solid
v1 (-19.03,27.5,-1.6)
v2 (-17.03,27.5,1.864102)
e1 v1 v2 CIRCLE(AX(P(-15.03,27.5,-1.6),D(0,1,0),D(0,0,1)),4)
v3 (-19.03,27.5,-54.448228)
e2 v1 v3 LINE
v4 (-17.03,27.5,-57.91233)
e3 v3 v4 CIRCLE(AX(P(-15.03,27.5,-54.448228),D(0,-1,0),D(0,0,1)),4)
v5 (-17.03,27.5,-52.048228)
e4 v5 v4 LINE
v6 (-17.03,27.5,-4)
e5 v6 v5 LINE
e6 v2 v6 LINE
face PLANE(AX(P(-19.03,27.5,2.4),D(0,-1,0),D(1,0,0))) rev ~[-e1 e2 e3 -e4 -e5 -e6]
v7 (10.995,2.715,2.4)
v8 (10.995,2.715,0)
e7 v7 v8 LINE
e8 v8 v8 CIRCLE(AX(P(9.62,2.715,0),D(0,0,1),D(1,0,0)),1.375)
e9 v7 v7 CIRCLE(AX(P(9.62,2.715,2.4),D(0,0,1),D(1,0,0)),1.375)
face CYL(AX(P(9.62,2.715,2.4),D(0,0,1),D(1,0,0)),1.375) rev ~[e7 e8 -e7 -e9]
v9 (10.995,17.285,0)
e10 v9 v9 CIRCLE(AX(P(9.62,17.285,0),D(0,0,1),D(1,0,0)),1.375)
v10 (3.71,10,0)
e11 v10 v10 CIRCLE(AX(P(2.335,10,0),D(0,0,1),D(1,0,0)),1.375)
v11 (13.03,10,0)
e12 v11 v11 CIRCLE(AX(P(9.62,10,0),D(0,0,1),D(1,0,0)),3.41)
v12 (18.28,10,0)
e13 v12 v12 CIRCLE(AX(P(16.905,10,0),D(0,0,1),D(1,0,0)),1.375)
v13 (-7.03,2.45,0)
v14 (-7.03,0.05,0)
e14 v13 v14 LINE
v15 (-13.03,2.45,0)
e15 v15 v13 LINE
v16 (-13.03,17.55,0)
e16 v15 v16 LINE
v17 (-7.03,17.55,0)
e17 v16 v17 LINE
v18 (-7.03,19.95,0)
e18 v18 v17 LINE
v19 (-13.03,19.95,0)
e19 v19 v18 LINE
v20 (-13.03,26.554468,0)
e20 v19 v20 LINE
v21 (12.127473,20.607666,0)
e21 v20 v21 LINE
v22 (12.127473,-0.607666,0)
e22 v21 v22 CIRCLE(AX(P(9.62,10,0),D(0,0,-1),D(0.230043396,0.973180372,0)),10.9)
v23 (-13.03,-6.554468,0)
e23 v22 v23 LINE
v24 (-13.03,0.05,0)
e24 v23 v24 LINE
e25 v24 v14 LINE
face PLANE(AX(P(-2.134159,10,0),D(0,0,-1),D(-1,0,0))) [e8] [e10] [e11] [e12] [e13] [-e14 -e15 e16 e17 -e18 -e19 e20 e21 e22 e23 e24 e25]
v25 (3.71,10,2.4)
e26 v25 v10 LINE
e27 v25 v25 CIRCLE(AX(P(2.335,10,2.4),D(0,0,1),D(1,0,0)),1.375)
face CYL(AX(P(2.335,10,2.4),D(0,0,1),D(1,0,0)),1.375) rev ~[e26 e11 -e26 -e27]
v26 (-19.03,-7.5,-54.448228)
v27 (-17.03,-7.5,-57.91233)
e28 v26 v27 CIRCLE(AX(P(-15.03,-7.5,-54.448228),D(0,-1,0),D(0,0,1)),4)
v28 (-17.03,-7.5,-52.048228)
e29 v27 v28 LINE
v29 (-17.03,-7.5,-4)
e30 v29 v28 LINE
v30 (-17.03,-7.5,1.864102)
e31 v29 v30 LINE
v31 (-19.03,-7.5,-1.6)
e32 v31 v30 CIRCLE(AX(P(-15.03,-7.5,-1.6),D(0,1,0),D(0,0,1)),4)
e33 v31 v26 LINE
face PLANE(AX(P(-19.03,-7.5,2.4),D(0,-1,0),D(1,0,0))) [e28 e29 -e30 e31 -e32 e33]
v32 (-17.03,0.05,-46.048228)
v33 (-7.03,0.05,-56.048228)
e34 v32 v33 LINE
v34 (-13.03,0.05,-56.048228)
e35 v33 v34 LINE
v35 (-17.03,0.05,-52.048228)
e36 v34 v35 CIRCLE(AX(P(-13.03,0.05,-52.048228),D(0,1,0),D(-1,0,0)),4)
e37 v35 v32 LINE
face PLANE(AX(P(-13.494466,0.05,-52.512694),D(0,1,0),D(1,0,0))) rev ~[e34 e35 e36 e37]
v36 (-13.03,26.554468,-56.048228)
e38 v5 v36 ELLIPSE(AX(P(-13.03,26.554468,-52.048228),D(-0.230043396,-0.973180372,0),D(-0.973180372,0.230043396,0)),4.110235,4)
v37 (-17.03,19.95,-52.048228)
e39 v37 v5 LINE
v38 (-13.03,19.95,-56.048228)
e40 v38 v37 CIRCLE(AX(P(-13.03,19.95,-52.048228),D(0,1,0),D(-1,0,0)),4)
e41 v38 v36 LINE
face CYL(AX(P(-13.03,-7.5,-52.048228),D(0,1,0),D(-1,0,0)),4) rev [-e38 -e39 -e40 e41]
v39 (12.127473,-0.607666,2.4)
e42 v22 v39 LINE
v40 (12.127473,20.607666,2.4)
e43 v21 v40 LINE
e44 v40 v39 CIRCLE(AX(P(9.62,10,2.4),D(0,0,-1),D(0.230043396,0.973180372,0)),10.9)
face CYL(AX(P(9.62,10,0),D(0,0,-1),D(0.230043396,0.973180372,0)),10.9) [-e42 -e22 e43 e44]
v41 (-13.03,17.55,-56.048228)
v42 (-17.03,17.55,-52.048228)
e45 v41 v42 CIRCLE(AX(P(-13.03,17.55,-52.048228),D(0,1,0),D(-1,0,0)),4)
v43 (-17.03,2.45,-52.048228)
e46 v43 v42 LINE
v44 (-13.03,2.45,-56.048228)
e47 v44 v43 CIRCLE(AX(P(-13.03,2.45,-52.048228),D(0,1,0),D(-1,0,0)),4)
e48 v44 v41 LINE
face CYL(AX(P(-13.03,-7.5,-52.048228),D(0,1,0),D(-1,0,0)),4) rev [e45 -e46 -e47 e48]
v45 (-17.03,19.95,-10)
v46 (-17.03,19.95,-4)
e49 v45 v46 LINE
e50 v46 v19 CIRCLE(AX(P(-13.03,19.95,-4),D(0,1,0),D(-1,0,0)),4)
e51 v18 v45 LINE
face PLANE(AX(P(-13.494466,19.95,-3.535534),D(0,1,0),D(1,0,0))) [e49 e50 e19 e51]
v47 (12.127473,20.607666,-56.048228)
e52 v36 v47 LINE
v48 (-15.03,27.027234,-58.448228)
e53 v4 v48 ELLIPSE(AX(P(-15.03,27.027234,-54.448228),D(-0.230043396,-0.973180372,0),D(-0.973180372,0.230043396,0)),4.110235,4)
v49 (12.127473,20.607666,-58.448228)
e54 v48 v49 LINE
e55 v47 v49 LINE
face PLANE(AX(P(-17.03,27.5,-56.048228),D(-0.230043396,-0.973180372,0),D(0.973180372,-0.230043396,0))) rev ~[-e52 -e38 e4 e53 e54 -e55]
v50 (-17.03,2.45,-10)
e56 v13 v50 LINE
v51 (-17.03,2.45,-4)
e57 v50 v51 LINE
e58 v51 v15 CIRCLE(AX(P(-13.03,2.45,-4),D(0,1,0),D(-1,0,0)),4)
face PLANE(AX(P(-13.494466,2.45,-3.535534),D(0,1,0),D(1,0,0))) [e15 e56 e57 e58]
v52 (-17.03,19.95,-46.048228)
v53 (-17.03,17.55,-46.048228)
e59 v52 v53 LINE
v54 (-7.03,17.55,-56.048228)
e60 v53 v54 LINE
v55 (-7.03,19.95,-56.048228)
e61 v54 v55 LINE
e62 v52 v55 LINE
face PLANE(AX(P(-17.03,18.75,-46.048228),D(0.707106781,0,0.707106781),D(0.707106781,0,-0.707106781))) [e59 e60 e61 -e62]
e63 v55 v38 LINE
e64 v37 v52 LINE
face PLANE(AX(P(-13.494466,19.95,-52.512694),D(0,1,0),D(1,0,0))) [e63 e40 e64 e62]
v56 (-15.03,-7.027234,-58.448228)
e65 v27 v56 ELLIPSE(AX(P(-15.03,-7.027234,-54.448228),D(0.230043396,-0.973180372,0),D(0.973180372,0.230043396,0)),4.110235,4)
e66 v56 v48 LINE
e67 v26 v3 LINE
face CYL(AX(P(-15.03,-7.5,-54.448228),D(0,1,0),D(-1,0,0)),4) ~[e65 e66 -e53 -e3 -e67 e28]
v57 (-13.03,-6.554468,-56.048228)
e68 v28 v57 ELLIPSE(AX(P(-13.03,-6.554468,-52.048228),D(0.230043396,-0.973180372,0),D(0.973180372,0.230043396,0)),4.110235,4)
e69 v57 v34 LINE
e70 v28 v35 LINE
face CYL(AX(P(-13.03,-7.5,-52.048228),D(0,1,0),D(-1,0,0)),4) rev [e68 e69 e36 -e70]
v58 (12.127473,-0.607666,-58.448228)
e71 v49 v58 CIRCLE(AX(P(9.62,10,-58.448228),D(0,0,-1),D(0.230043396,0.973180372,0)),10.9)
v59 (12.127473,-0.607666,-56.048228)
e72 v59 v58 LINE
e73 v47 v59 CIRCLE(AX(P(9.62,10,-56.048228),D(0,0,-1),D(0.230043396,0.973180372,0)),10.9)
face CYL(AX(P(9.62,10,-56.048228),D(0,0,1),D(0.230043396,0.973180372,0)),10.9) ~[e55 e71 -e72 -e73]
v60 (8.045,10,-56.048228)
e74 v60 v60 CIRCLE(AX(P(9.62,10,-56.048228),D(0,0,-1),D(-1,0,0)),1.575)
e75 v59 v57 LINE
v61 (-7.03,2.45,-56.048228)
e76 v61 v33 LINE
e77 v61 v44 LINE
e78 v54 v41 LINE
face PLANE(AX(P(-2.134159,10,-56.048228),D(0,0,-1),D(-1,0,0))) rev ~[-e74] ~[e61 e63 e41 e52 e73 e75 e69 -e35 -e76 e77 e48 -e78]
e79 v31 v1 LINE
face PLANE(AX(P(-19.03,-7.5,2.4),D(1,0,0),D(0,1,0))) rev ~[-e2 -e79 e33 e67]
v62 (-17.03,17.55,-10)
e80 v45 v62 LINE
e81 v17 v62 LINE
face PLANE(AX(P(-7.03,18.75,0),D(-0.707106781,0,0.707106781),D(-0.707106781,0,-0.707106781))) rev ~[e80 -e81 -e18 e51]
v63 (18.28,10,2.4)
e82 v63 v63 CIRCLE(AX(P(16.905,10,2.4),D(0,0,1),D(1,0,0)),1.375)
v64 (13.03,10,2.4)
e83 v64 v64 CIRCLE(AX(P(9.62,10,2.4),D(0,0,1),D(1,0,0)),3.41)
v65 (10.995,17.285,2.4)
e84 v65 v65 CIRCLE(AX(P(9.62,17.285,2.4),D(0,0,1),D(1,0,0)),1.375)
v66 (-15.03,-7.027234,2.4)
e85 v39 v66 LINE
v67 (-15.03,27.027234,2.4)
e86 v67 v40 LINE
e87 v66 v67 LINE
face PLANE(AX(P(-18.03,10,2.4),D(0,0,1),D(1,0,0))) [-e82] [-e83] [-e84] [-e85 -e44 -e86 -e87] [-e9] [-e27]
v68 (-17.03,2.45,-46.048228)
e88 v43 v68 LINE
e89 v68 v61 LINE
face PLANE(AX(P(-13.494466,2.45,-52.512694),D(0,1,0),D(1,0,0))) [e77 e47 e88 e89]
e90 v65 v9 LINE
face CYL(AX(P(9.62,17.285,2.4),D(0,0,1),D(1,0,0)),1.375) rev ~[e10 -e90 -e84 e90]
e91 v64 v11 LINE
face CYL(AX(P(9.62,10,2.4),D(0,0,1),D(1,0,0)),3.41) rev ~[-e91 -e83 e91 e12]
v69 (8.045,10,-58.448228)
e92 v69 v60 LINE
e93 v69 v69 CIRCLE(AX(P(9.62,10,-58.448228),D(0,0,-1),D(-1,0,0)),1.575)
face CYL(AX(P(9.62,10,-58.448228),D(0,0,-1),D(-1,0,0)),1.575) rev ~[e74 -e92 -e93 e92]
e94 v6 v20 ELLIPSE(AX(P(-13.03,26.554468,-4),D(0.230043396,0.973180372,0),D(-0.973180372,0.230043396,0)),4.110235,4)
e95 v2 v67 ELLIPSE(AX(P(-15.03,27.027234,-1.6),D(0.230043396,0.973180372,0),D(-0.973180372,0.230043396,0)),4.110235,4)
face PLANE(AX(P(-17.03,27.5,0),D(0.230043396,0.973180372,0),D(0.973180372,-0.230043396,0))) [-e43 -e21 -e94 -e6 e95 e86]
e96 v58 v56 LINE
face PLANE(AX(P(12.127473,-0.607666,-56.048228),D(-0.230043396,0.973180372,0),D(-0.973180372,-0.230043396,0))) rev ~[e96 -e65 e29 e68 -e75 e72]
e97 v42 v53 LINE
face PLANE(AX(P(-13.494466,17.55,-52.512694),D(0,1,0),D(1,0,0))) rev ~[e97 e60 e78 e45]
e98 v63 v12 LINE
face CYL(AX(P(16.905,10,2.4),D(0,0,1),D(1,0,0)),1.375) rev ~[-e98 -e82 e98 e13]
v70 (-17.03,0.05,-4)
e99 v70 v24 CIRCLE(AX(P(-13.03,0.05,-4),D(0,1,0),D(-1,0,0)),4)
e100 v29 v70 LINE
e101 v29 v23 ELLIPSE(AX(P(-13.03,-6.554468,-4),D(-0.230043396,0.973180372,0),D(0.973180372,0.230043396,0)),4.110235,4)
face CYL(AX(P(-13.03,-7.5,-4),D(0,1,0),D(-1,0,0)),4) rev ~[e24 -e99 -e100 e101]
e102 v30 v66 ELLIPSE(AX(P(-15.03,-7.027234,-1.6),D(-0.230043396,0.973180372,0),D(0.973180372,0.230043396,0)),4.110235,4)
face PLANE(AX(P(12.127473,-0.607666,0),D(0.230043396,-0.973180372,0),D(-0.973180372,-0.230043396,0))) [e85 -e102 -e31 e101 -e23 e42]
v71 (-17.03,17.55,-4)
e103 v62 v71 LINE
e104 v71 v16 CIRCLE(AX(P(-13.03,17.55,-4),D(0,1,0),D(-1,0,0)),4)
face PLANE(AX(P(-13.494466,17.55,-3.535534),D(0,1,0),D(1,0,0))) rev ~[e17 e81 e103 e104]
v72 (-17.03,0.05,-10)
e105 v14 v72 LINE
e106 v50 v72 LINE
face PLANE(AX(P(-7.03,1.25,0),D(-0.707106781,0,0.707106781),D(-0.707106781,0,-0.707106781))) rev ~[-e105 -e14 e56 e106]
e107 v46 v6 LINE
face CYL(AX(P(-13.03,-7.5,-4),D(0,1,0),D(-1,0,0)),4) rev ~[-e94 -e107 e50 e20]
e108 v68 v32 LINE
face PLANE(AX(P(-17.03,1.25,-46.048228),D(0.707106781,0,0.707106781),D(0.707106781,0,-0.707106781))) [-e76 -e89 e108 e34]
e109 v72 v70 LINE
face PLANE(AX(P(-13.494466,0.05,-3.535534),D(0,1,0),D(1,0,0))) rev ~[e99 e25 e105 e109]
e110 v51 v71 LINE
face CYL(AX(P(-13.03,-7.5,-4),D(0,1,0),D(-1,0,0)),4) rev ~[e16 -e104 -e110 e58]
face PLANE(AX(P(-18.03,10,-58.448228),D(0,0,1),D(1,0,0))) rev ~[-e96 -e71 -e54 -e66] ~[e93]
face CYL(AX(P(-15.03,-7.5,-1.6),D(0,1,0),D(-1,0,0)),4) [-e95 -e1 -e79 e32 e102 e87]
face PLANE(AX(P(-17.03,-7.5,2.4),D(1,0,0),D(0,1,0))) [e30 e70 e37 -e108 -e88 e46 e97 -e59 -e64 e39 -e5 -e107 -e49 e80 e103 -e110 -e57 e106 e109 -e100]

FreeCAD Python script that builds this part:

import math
import FreeCAD as App
import Part
import Sketcher


def edges_at(feature, points):
    """Names of the edges that pass closest to the given points."""
    edges = feature.Shape.Edges
    near = lambda p: min(range(len(edges)), key=lambda i: edges[i].distToShape(Part.Vertex(*p))[0])
    return sorted({f"Edge{near(p) + 1}" for p in points})

doc = App.newDocument("Part")
body = doc.addObject("PartDesign::Body", "Body")

# Sketch on XY plane
sketch1 = body.newObject("Sketcher::SketchObject", "Sketch")
sketch1.AttachmentSupport = (doc.getObject("XY_Plane"), [""])
sketch1.MapMode = "FlatFace"
sketch1.addGeometry([
    Part.LineSegment(App.Vector(-17, -8, 0), App.Vector(12, -1, 0)),
    Part.ArcOfCircle(Part.Circle(App.Vector(10, 10, 0), App.Vector(0, 0, 1), 11), math.radians(-77), math.radians(77)),
    Part.LineSegment(App.Vector(12, 21, 0), App.Vector(-17, 28, 0)),
    Part.LineSegment(App.Vector(-17, 28, 0), App.Vector(-17, -8, 0)),
], False)
sketch1.addConstraint([
    Sketcher.Constraint("Tangent", 0, 2, 1, 1),
    Sketcher.Constraint("Tangent", 1, 2, 2, 1),
    Sketcher.Constraint("Coincident", 2, 2, 3, 1),
    Sketcher.Constraint("Coincident", 3, 2, 0, 1),
    Sketcher.Constraint("Vertical", 3),
    Sketcher.Constraint("Vertical", 0, 2, 1, 2),
    Sketcher.Constraint("Radius", 1, 10.9),
    Sketcher.Constraint("DistanceY", 3, 2, 3, 1, 35.0),
    Sketcher.Constraint("DistanceY", -1, 1, 1, 3, 10.0),
    Sketcher.Constraint("DistanceX", -1, 1, 1, 3, 9.62),
    Sketcher.Constraint("DistanceX", 2, 2, -1, 1, 17.03),
])
pad1 = body.newObject("PartDesign::Pad", "Pad")
pad1.Profile = sketch1
pad1.Length = 2.4
body2 = doc.addObject("PartDesign::Body", "Body001")

# Sketch on XY plane
sketch2 = body2.newObject("Sketcher::SketchObject", "Sketch001")
sketch2.AttachmentSupport = (doc.getObject("XY_Plane001"), [""])
sketch2.MapMode = "FlatFace"
sketch2.AttachmentOffset = App.Placement(App.Vector(0, 0, -56.048228), App.Rotation())
sketch2.addGeometry([
    Part.LineSegment(App.Vector(12, -1, 0), App.Vector(-17, -8, 0)),
    Part.LineSegment(App.Vector(-17, -8, 0), App.Vector(-17, 28, 0)),
    Part.LineSegment(App.Vector(-17, 28, 0), App.Vector(12, 21, 0)),
    Part.ArcOfCircle(Part.Circle(App.Vector(10, 10, 0), App.Vector(0, 0, 1), 11), math.radians(-77), math.radians(77)),
], False)
sketch2.addConstraint([
    Sketcher.Constraint("Coincident", 0, 2, 1, 1),
    Sketcher.Constraint("Coincident", 1, 2, 2, 1),
    Sketcher.Constraint("Tangent", 2, 2, 3, 2),
    Sketcher.Constraint("Tangent", 3, 1, 0, 1),
    Sketcher.Constraint("Vertical", 1),
    Sketcher.Constraint("Vertical", 2, 2, 3, 1),
    Sketcher.Constraint("Radius", 3, 10.9),
    Sketcher.Constraint("DistanceY", 1, 1, 1, 2, 35.0),
    Sketcher.Constraint("DistanceY", -1, 1, 3, 3, 10.0),
    Sketcher.Constraint("DistanceX", -1, 1, 3, 3, 9.62),
    Sketcher.Constraint("DistanceX", 0, 2, -1, 1, 17.03),
])
pad2 = body2.newObject("PartDesign::Pad", "Pad001")
pad2.Profile = sketch2
pad2.Length = 2.4
pad2.Reversed = True
body.AllowCompound = True
doc.recompute()

boolean = body.newObject("PartDesign::Boolean", "Boolean")
boolean.Type = "Fuse"
boolean.addObjects([body2])

# Sketch on XY plane
sketch3 = body.newObject("Sketcher::SketchObject", "Sketch002")
sketch3.AttachmentSupport = (doc.getObject("XY_Plane"), [""])
sketch3.MapMode = "FlatFace"
sketch3.AttachmentOffset = App.Placement(App.Vector(0, 0, 2.4), App.Rotation())
sketch3.addGeometry([
    Part.LineSegment(App.Vector(-19, 27.5, 0), App.Vector(-19, -7.5, 0)),
    Part.LineSegment(App.Vector(-19, -7.5, 0), App.Vector(-17, -7.5, 0)),
    Part.LineSegment(App.Vector(-17, -7.5, 0), App.Vector(-17, 27.5, 0)),
    Part.LineSegment(App.Vector(-17, 27.5, 0), App.Vector(-19, 27.5, 0)),
], False)
sketch3.addConstraint([
    Sketcher.Constraint("Coincident", 0, 2, 1, 1),
    Sketcher.Constraint("Coincident", 1, 2, 2, 1),
    Sketcher.Constraint("Coincident", 2, 2, 3, 1),
    Sketcher.Constraint("Coincident", 3, 2, 0, 1),
    Sketcher.Constraint("Vertical", 0),
    Sketcher.Constraint("Horizontal", 1),
    Sketcher.Constraint("Vertical", 2),
    Sketcher.Constraint("Horizontal", 3),
    Sketcher.Constraint("DistanceX", 1, 1, 1, 2, 2.0),
    Sketcher.Constraint("DistanceY", 0, 2, 0, 1, 35.0),
    Sketcher.Constraint("DistanceY", 0, 2, -1, 1, 7.5),
    Sketcher.Constraint("DistanceX", 0, 2, -1, 1, 19.03),
])
pad3 = body.newObject("PartDesign::Pad", "Pad002")
pad3.Profile = sketch3
pad3.Length = 60.848228
pad3.Reversed = True

# Sketch on XY plane
sketch4 = body.newObject("Sketcher::SketchObject", "Sketch003")
sketch4.AttachmentSupport = (doc.getObject("XY_Plane"), [""])
sketch4.MapMode = "FlatFace"
sketch4.AttachmentOffset = App.Placement(App.Vector(0, 0, -58.448228), App.Rotation())
sketch4.addGeometry(Part.Circle(App.Vector(9.6, 10, 0), App.Vector(0, 0, 1), 1.6), False)
sketch4.addConstraint([
    Sketcher.Constraint("Diameter", 0, 3.15),
    Sketcher.Constraint("DistanceY", -1, 1, 0, 3, 10.0),
    Sketcher.Constraint("DistanceX", -1, 1, 0, 3, 9.62),
])
pocket1 = body.newObject("PartDesign::Pocket", "Pocket")
pocket1.Profile = sketch4
pocket1.Type = "UpToFirst"
pocket1.Reversed = True

# Sketch on XY plane
sketch5 = body.newObject("Sketcher::SketchObject", "Sketch004")
sketch5.AttachmentSupport = (doc.getObject("XY_Plane"), [""])
sketch5.MapMode = "FlatFace"
sketch5.AttachmentOffset = App.Placement(App.Vector(0, 0, 2.4), App.Rotation())
sketch5.addGeometry(Part.Circle(App.Vector(9.6, 10, 0), App.Vector(0, 0, 1), 3.4), False)
sketch5.addConstraint([
    Sketcher.Constraint("Diameter", 0, 6.82),
    Sketcher.Constraint("DistanceY", -1, 1, 0, 3, 10.0),
    Sketcher.Constraint("DistanceX", -1, 1, 0, 3, 9.62),
])
pocket2 = body.newObject("PartDesign::Pocket", "Pocket001")
pocket2.Profile = sketch5
pocket2.Type = "UpToFirst"

# Sketch on XY plane
sketch6 = body.newObject("Sketcher::SketchObject", "Sketch005")
sketch6.AttachmentSupport = (doc.getObject("XY_Plane"), [""])
sketch6.MapMode = "FlatFace"
sketch6.AttachmentOffset = App.Placement(App.Vector(0, 0, 2.4), App.Rotation())
sketch6.addGeometry(Part.Circle(App.Vector(2.3, 10, 0), App.Vector(0, 0, 1), 1.4), False)
sketch6.addConstraint([
    Sketcher.Constraint("Diameter", 0, 2.75),
    Sketcher.Constraint("DistanceY", -1, 1, 0, 3, 10.0),
    Sketcher.Constraint("DistanceX", -1, 1, 0, 3, 2.335),
])
pocket3 = body.newObject("PartDesign::Pocket", "Pocket002")
pocket3.Profile = sketch6
pocket3.Type = "UpToFirst"

# Sketch on XY plane
sketch7 = body.newObject("Sketcher::SketchObject", "Sketch006")
sketch7.AttachmentSupport = (doc.getObject("XY_Plane"), [""])
sketch7.MapMode = "FlatFace"
sketch7.AttachmentOffset = App.Placement(App.Vector(0, 0, 2.4), App.Rotation())
sketch7.addGeometry(Part.Circle(App.Vector(9.6, 17.3, 0), App.Vector(0, 0, 1), 1.4), False)
sketch7.addConstraint([
    Sketcher.Constraint("Diameter", 0, 2.75),
    Sketcher.Constraint("DistanceX", -1, 1, 0, 3, 9.62),
    Sketcher.Constraint("DistanceY", -1, 1, 0, 3, 17.285),
])
pocket4 = body.newObject("PartDesign::Pocket", "Pocket003")
pocket4.Profile = sketch7
pocket4.Type = "UpToFirst"

# Sketch on XY plane
sketch8 = body.newObject("Sketcher::SketchObject", "Sketch007")
sketch8.AttachmentSupport = (doc.getObject("XY_Plane"), [""])
sketch8.MapMode = "FlatFace"
sketch8.AttachmentOffset = App.Placement(App.Vector(0, 0, 2.4), App.Rotation())
sketch8.addGeometry(Part.Circle(App.Vector(16.9, 10, 0), App.Vector(0, 0, 1), 1.4), False)
sketch8.addConstraint([
    Sketcher.Constraint("Diameter", 0, 2.75),
    Sketcher.Constraint("DistanceY", -1, 1, 0, 3, 10.0),
    Sketcher.Constraint("DistanceX", -1, 1, 0, 3, 16.905),
])
pocket5 = body.newObject("PartDesign::Pocket", "Pocket004")
pocket5.Profile = sketch8
pocket5.Type = "UpToFirst"

# Sketch on XY plane
sketch9 = body.newObject("Sketcher::SketchObject", "Sketch008")
sketch9.AttachmentSupport = (doc.getObject("XY_Plane"), [""])
sketch9.MapMode = "FlatFace"
sketch9.AttachmentOffset = App.Placement(App.Vector(0, 0, 2.4), App.Rotation())
sketch9.addGeometry(Part.Circle(App.Vector(9.6, 2.7, 0), App.Vector(0, 0, 1), 1.4), False)
sketch9.addConstraint([
    Sketcher.Constraint("Diameter", 0, 2.75),
    Sketcher.Constraint("DistanceX", -1, 1, 0, 3, 9.62),
    Sketcher.Constraint("DistanceY", -1, 1, 0, 3, 2.715),
])
pocket6 = body.newObject("PartDesign::Pocket", "Pocket005")
pocket6.Profile = sketch9
pocket6.Type = "UpToFirst"
doc.recompute()

fillet = body.newObject("PartDesign::Fillet", "Fillet")
fillet.Base = (pocket6, edges_at(pocket6, [
    (-19.03, 10, -58.448),
    (-19.03, 10, 2.4),
    (-17.03, 10, 0),
    (-17.03, 10, -56.048),
]))
fillet.Radius = 4

# Sketch on XZ plane
sketch10 = body.newObject("Sketcher::SketchObject", "Sketch009")
sketch10.AttachmentSupport = (doc.getObject("XZ_Plane"), [""])
sketch10.MapMode = "FlatFace"
sketch10.AttachmentOffset = App.Placement(App.Vector(0, 0, -18.75), App.Rotation())
sketch10.addGeometry([
    Part.LineSegment(App.Vector(-7, -56, 0), App.Vector(-17, -46, 0)),  # 0
    Part.LineSegment(App.Vector(-17, -46, 0), App.Vector(-17, -56, 0)),  # 1
    Part.LineSegment(App.Vector(-17, -56, 0), App.Vector(-7, -56, 0)),  # 2
    Part.LineSegment(App.Vector(-17, 0, 0), App.Vector(-17, -10, 0)),  # 3
    Part.LineSegment(App.Vector(-17, -10, 0), App.Vector(-7, 0, 0)),  # 4
    Part.LineSegment(App.Vector(-7, 0, 0), App.Vector(-17, 0, 0)),  # 5
], False)
sketch10.addConstraint([
    Sketcher.Constraint("Coincident", 0, 2, 1, 1),
    Sketcher.Constraint("Coincident", 1, 2, 2, 1),
    Sketcher.Constraint("Coincident", 2, 2, 0, 1),
    Sketcher.Constraint("Coincident", 3, 2, 4, 1),
    Sketcher.Constraint("Coincident", 4, 2, 5, 1),
    Sketcher.Constraint("Coincident", 5, 2, 3, 1),
    Sketcher.Constraint("Vertical", 1),
    Sketcher.Constraint("Horizontal", 2),
    Sketcher.Constraint("Vertical", 3),
    Sketcher.Constraint("Horizontal", 5),
    Sketcher.Constraint("PointOnObject", 4, 2, -1),
    Sketcher.Constraint("Perpendicular", 0, 4),
    Sketcher.Constraint("Vertical", 1, 2, 3, 2),
    Sketcher.Constraint("Vertical", 2, 2, 4, 2),
    Sketcher.Constraint("Equal", 5, 1),
    Sketcher.Constraint("DistanceX", 2, 1, 2, 2, 10.0),
    Sketcher.Constraint("DistanceX", 0, 2, -1, 1, 17.03),
    Sketcher.Constraint("DistanceY", 0, 2, -1, 1, 46.048228),
])
pad4 = body.newObject("PartDesign::Pad", "Pad003")
pad4.Profile = sketch10
pad4.Length = 2.4
pad4.Midplane = True

# Sketch on XZ plane
sketch11 = body.newObject("Sketcher::SketchObject", "Sketch010")
sketch11.AttachmentSupport = (doc.getObject("XZ_Plane"), [""])
sketch11.MapMode = "FlatFace"
sketch11.AttachmentOffset = App.Placement(App.Vector(0, 0, -1.25), App.Rotation())
sketch11.addGeometry([
    Part.LineSegment(App.Vector(-17, -56, 0), App.Vector(-7, -56, 0)),  # 0
    Part.LineSegment(App.Vector(-7, -56, 0), App.Vector(-17, -46, 0)),  # 1
    Part.LineSegment(App.Vector(-17, -46, 0), App.Vector(-17, -56, 0)),  # 2
    Part.LineSegment(App.Vector(-17, 0, 0), App.Vector(-17, -10, 0)),  # 3
    Part.LineSegment(App.Vector(-17, -10, 0), App.Vector(-7, 0, 0)),  # 4
    Part.LineSegment(App.Vector(-7, 0, 0), App.Vector(-17, 0, 0)),  # 5
], False)
sketch11.addConstraint([
    Sketcher.Constraint("Coincident", 0, 2, 1, 1),
    Sketcher.Constraint("Coincident", 1, 2, 2, 1),
    Sketcher.Constraint("Coincident", 2, 2, 0, 1),
    Sketcher.Constraint("Coincident", 3, 2, 4, 1),
    Sketcher.Constraint("Coincident", 4, 2, 5, 1),
    Sketcher.Constraint("Coincident", 5, 2, 3, 1),
    Sketcher.Constraint("Horizontal", 0),
    Sketcher.Constraint("Vertical", 2),
    Sketcher.Constraint("Vertical", 3),
    Sketcher.Constraint("Horizontal", 5),
    Sketcher.Constraint("PointOnObject", 4, 2, -1),
    Sketcher.Constraint("Perpendicular", 1, 4),
    Sketcher.Constraint("Vertical", 2, 2, 3, 2),
    Sketcher.Constraint("Vertical", 0, 2, 4, 2),
    Sketcher.Constraint("Equal", 5, 2),
    Sketcher.Constraint("DistanceX", 0, 1, 0, 2, 10.0),
    Sketcher.Constraint("DistanceX", 0, 2, -1, 1, 7.03),
    Sketcher.Constraint("DistanceY", 0, 2, -1, 1, 56.048228),
])
pad5 = body.newObject("PartDesign::Pad", "Pad004")
pad5.Profile = sketch11
pad5.Length = 2.4
pad5.Midplane = True

doc.recompute()
